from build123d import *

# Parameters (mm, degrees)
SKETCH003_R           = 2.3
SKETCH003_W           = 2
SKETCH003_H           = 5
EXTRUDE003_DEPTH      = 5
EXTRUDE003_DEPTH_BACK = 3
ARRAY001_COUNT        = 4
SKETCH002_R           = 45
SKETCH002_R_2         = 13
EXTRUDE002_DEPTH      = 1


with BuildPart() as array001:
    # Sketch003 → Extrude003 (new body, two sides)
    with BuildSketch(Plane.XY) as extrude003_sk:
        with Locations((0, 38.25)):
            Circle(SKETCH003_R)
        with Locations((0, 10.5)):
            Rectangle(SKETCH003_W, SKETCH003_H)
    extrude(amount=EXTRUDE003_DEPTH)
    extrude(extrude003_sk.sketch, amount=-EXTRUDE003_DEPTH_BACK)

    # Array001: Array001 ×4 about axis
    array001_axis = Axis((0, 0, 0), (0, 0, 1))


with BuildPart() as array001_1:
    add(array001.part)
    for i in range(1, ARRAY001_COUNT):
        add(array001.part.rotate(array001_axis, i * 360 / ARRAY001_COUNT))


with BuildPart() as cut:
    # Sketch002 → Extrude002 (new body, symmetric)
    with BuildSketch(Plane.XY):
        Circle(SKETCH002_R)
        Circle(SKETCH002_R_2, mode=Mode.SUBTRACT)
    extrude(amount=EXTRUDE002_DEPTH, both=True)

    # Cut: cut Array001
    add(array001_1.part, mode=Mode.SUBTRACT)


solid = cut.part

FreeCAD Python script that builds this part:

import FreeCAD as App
import Part
import Sketcher
from FreeCAD import Vector
Q = App.Units.Quantity


def add_polygon(sketch, points):
    """Adds a closed chain of lines whose ends are joined by coincident constraints."""
    first, n = sketch.GeometryCount, len(points)
    for a, b in zip(points, points[1:] + points[:1]):
        sketch.addGeometry(Part.LineSegment(App.Vector(*a, 0), App.Vector(*b, 0)), False)
    for i in range(n):
        sketch.addConstraint(Sketcher.Constraint("Coincident", first + i, 2, first + (i + 1) % n, 1))

doc = App.newDocument("Part")
body = doc.addObject("PartDesign::Body", "Body")
body.AllowCompound = True

sketch1 = body.newObject("Sketcher::SketchObject", "Sketch")
sketch1.AttachmentSupport = (doc.getObject("XY_Plane"), [""])
sketch1.MapMode = "FlatFace"
sketch1.addGeometry(Part.Circle(Vector(0, 38.2, 0), Vector(0, 0, 1), 2.3), False)
add_polygon(sketch1, [(-1, 13), (-1, 8), (1, 8), (1, 13)])
sketch1.addConstraint(Sketcher.Constraint("Vertical", 1))
sketch1.addConstraint(Sketcher.Constraint("Horizontal", 2))
sketch1.addConstraint(Sketcher.Constraint("Vertical", 3))
sketch1.addConstraint(Sketcher.Constraint("Horizontal", 4))
sketch1.addConstraint(Sketcher.Constraint("PointOnObject", 0, 3, -2))
sketch1.addConstraint(Sketcher.Constraint("Diameter", 0, Q("4.6 mm")))
sketch1.addConstraint(Sketcher.Constraint("DistanceX", 2, 1, 2, 2, Q("2 mm")))
sketch1.addConstraint(Sketcher.Constraint("DistanceY", 1, 2, 1, 1, Q("5 mm")))
sketch1.addConstraint(Sketcher.Constraint("DistanceX", 1, 2, -1, 1, Q("1 mm")))
sketch1.addConstraint(Sketcher.Constraint("DistanceY", -1, 1, 1, 2, Q("8 mm")))
sketch1.addConstraint(Sketcher.Constraint("DistanceY", -1, 1, 0, 3, Q("38.25 mm")))
pad1 = body.newObject("PartDesign::Pad", "Pad")
pad1.Profile = sketch1
pad1.Type = "TwoLengths"
pad1.Length = 5
pad1.Length2 = 3
body2 = doc.addObject("PartDesign::Body", "Body001")
body2.AllowCompound = True
doc.recompute()

body2.BaseFeature = body
doc.recompute()

body3 = doc.addObject("PartDesign::Body", "Body002")
body3.BaseFeature = body
body3.Placement = App.Placement(Vector(0, 0, 0), App.Rotation(Vector(0, 0, 1), 90))
boolean = body2.newObject("PartDesign::Boolean", "Boolean")
boolean.Type = "Fuse"
boolean.addObjects([body3])
doc.recompute()

body4 = doc.addObject("PartDesign::Body", "Body003")
body4.BaseFeature = body
body4.Placement = App.Placement(Vector(0, 0, 0), App.Rotation(Vector(0, 0, 1), 180))
boolean2 = body2.newObject("PartDesign::Boolean", "Boolean001")
boolean2.Type = "Fuse"
boolean2.addObjects([body4])
doc.recompute()

body.Placement = App.Placement(Vector(0, 0, 0), App.Rotation(Vector(0, 0, 1), 270))
boolean3 = body2.newObject("PartDesign::Boolean", "Boolean002")
boolean3.Type = "Fuse"
boolean3.addObjects([body])
body5 = doc.addObject("PartDesign::Body", "Body004")

sketch2 = body5.newObject("Sketcher::SketchObject", "Sketch001")
sketch2.AttachmentSupport = (doc.getObject("XY_Plane004"), [""])
sketch2.MapMode = "FlatFace"
sketch2.addGeometry(Part.Circle(Vector(0, 0, 0), Vector(0, 0, 1), 45), False)
sketch2.addGeometry(Part.Circle(Vector(0, 0, 0), Vector(0, 0, 1), 13), False)
sketch2.addConstraint(Sketcher.Constraint("Coincident", 0, 3, -1, 1))
sketch2.addConstraint(Sketcher.Constraint("Coincident", 1, 3, -1, 1))
sketch2.addConstraint(Sketcher.Constraint("Diameter", 0, Q("90 mm")))
sketch2.addConstraint(Sketcher.Constraint("Diameter", 1, Q("26 mm")))
pad2 = body5.newObject("PartDesign::Pad", "Pad001")
pad2.Profile = sketch2
pad2.Length = 2
pad2.Midplane = True
doc.recompute()

boolean4 = body5.newObject("PartDesign::Boolean", "Boolean003")
boolean4.Type = "Cut"
boolean4.addObjects([body2])

doc.recompute()
